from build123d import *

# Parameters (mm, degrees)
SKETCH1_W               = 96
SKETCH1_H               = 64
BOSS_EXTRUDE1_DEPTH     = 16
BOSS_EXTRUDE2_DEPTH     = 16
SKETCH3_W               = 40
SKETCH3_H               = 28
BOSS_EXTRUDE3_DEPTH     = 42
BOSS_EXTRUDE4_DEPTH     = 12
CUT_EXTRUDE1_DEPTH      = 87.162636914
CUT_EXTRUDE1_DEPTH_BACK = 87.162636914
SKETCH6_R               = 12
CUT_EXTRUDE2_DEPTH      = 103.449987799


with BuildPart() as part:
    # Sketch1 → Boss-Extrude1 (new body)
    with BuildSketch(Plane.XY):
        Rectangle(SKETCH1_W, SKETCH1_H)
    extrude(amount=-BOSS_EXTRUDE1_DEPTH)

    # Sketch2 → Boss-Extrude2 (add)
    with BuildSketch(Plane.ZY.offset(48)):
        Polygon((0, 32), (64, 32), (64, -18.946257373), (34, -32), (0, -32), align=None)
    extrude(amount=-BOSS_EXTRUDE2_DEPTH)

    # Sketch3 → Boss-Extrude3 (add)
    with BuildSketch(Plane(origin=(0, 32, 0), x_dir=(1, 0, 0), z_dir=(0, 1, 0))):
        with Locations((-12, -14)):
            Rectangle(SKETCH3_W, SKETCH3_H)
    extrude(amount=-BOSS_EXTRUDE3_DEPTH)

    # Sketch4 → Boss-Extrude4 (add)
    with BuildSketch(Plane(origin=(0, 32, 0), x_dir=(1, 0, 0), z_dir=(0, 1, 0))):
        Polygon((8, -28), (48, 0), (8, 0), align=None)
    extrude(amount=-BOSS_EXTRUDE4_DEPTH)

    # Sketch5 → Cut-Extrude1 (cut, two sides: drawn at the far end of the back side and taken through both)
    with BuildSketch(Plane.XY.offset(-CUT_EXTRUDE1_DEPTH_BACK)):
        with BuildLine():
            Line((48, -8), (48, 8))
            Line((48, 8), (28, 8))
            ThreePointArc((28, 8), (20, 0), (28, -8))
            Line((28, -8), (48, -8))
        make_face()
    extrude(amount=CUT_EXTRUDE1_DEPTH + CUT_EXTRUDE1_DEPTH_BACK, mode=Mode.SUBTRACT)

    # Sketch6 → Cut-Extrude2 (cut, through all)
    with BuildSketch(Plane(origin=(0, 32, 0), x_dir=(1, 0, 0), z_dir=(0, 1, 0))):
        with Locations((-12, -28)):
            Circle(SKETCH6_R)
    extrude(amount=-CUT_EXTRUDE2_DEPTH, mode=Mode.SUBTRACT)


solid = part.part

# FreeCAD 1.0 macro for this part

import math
import FreeCAD as App
import Part
import Sketcher

V = App.Vector


def add_polygon(sketch, points):
    """Adds a closed chain of lines whose ends are joined by coincident constraints."""
    first, n = sketch.GeometryCount, len(points)
    for a, b in zip(points, points[1:] + points[:1]):
        sketch.addGeometry(Part.LineSegment(App.Vector(*a, 0), App.Vector(*b, 0)), False)
    for i in range(n):
        sketch.addConstraint(Sketcher.Constraint("Coincident", first + i, 2, first + (i + 1) % n, 1))

doc = App.newDocument("Part")
params = doc.addObject("Spreadsheet::Sheet", "Params")
for row, (alias, value) in enumerate([
    ("sketch1_width", "96 mm"),
    ("sketch1_height", "64 mm"),
    ("pad1_length", "16 mm"),
    ("sketch2_width", "64 mm"),
    ("sketch2_height", "34 mm"),
    ("pad2_length", "16 mm"),
    ("sketch3_width", "40 mm"),
    ("sketch3_height", "28 mm"),
    ("pad3_length", "42 mm"),
    ("sketch4_width", "40 mm"),
    ("sketch4_height", "28 mm"),
    ("pad4_length", "12 mm"),
    ("sketch5_radius", "8 mm"),
    ("sketch5_width", "20 mm"),
    ("sketch6_diameter", "24 mm"),
], start=1):
    params.set(f"A{row}", alias)
    params.set(f"B{row}", "=" + value)
    params.setAlias(f"B{row}", alias)

body = doc.addObject("PartDesign::Body", "Body")

sketch1 = body.newObject("Sketcher::SketchObject", "Sketch")
sketch1.AttachmentSupport = (doc.getObject("XY_Plane"), [""])
sketch1.MapMode = "FlatFace"
add_polygon(sketch1, [(-48, 32), (-48, -32), (48, -32), (48, 32)])
sketch1.addConstraint(Sketcher.Constraint("Vertical", 0))
sketch1.addConstraint(Sketcher.Constraint("Horizontal", 1))
sketch1.addConstraint(Sketcher.Constraint("Vertical", 2))
sketch1.addConstraint(Sketcher.Constraint("Horizontal", 3))
sketch1.addConstraint(Sketcher.Constraint("Symmetric", 0, 2, 2, 2, -1, 1))
sketch1.addConstraint(Sketcher.Constraint("DistanceX", 1, 1, 1, 2, 96.0))
sketch1.addConstraint(Sketcher.Constraint("DistanceY", 0, 2, 0, 1, 64.0))
sketch1.setExpression("Constraints[9]", "Params.sketch1_width")
sketch1.setExpression("Constraints[10]", "Params.sketch1_height")
pad1 = body.newObject("PartDesign::Pad", "Pad")
pad1.Profile = sketch1
pad1.setExpression("Length", "Params.pad1_length")
pad1.Reversed = True

sketch2 = body.newObject("Sketcher::SketchObject", "Sketch001")
sketch2.AttachmentSupport = (doc.getObject("YZ_Plane"), [""])
sketch2.MapMode = "FlatFace"
sketch2.AttachmentOffset = App.Placement(V(0, 0, -48), App.Rotation())
add_polygon(sketch2, [(32, 64), (32, 0), (-32, 0), (-32, 34), (-18.946257, 64)])
sketch2.addConstraint(Sketcher.Constraint("Vertical", 0))
sketch2.addConstraint(Sketcher.Constraint("Horizontal", 1))
sketch2.addConstraint(Sketcher.Constraint("Vertical", 2))
sketch2.addConstraint(Sketcher.Constraint("Horizontal", 4))
sketch2.addConstraint(Sketcher.Constraint("Symmetric", 0, 2, 1, 2, -1, 1))
sketch2.addConstraint(Sketcher.Constraint("Equal", 1, 0))
sketch2.addConstraint(Sketcher.Constraint("DistanceX", 1, 2, 1, 1, 64.0))
sketch2.addConstraint(Sketcher.Constraint("DistanceY", 2, 1, 2, 2, 34.0))
sketch2.addConstraint(Sketcher.Constraint("Distance", 3, 32.716971))
sketch2.setExpression("Constraints[11]", "Params.sketch2_width")
sketch2.setExpression("Constraints[12]", "Params.sketch2_height")
pad2 = body.newObject("PartDesign::Pad", "Pad001")
pad2.Profile = sketch2
pad2.setExpression("Length", "Params.pad2_length")

sketch3 = body.newObject("Sketcher::SketchObject", "Sketch002")
sketch3.AttachmentSupport = (doc.getObject("XZ_Plane"), [""])
sketch3.MapMode = "FlatFace"
sketch3.AttachmentOffset = App.Placement(V(0, 0, -32), App.Rotation())
add_polygon(sketch3, [(-32, 0), (-32, 28), (8, 28), (8, 0)])
sketch3.addConstraint(Sketcher.Constraint("Vertical", 0))
sketch3.addConstraint(Sketcher.Constraint("Horizontal", 1))
sketch3.addConstraint(Sketcher.Constraint("Vertical", 2))
sketch3.addConstraint(Sketcher.Constraint("Horizontal", 3))
sketch3.addConstraint(Sketcher.Constraint("PointOnObject", 2, 2, -1))
sketch3.addConstraint(Sketcher.Constraint("DistanceX", 1, 1, 1, 2, 40.0))
sketch3.addConstraint(Sketcher.Constraint("DistanceY", 0, 1, 0, 2, 28.0))
sketch3.addConstraint(Sketcher.Constraint("DistanceX", 0, 2, -1, 1, 32.0))
sketch3.setExpression("Constraints[9]", "Params.sketch3_width")
sketch3.setExpression("Constraints[10]", "Params.sketch3_height")
pad3 = body.newObject("PartDesign::Pad", "Pad002")
pad3.Profile = sketch3
pad3.setExpression("Length", "Params.pad3_length")

sketch4 = body.newObject("Sketcher::SketchObject", "Sketch003")
sketch4.AttachmentSupport = (doc.getObject("XZ_Plane"), [""])
sketch4.MapMode = "FlatFace"
sketch4.AttachmentOffset = App.Placement(V(0, 0, -32), App.Rotation())
add_polygon(sketch4, [(8, 28), (48, 0), (8, 0)])
sketch4.addConstraint(Sketcher.Constraint("Horizontal", 1))
sketch4.addConstraint(Sketcher.Constraint("Vertical", 2))
sketch4.addConstraint(Sketcher.Constraint("PointOnObject", 0, 2, -1))
sketch4.addConstraint(Sketcher.Constraint("DistanceX", 1, 2, 1, 1, 40.0))
sketch4.addConstraint(Sketcher.Constraint("DistanceY", 2, 1, 2, 2, 28.0))
sketch4.addConstraint(Sketcher.Constraint("DistanceX", -1, 1, 0, 2, 48.0))
sketch4.setExpression("Constraints[6]", "Params.sketch4_width")
sketch4.setExpression("Constraints[7]", "Params.sketch4_height")
pad4 = body.newObject("PartDesign::Pad", "Pad003")
pad4.Profile = sketch4
pad4.setExpression("Length", "Params.pad4_length")

sketch5 = body.newObject("Sketcher::SketchObject", "Sketch004")
sketch5.AttachmentSupport = (doc.getObject("XY_Plane"), [""])
sketch5.MapMode = "FlatFace"
sketch5.addGeometry(Part.LineSegment(V(48, -8, 0), V(48, 8, 0)), False)
sketch5.addGeometry(Part.LineSegment(V(48, 8, 0), V(28, 8, 0)), False)
sketch5.addGeometry(Part.ArcOfCircle(Part.Circle(V(28, 0, 0), V(0, 0, 1), 8), math.radians(90), math.radians(270)), False)
sketch5.addGeometry(Part.LineSegment(V(28, -8, 0), V(48, -8, 0)), False)
sketch5.addConstraint(Sketcher.Constraint("Coincident", 0, 2, 1, 1))
sketch5.addConstraint(Sketcher.Constraint("Tangent", 1, 2, 2, 1))
sketch5.addConstraint(Sketcher.Constraint("Tangent", 2, 2, 3, 1))
sketch5.addConstraint(Sketcher.Constraint("Coincident", 3, 2, 0, 1))
sketch5.addConstraint(Sketcher.Constraint("Vertical", 0))
sketch5.addConstraint(Sketcher.Constraint("Horizontal", 1))
sketch5.addConstraint(Sketcher.Constraint("Horizontal", 3))
sketch5.addConstraint(Sketcher.Constraint("PointOnObject", 2, 3, -1))
sketch5.addConstraint(Sketcher.Constraint("Radius", 2, 8.0))
sketch5.addConstraint(Sketcher.Constraint("DistanceX", 1, 2, 1, 1, 20.0))
sketch5.addConstraint(Sketcher.Constraint("DistanceX", -1, 1, 2, 3, 28.0))
sketch5.setExpression("Constraints[8]", "Params.sketch5_radius")
sketch5.setExpression("Constraints[9]", "Params.sketch5_width")
pocket1 = body.newObject("PartDesign::Pocket", "Pocket")
pocket1.Profile = sketch5
pocket1.Type = "ThroughAll"
pocket1.Midplane = True

sketch6 = body.newObject("Sketcher::SketchObject", "Sketch005")
sketch6.AttachmentSupport = (doc.getObject("XZ_Plane"), [""])
sketch6.MapMode = "FlatFace"
sketch6.AttachmentOffset = App.Placement(V(0, 0, -32), App.Rotation())
sketch6.addGeometry(Part.Circle(V(-12, 28, 0), V(0, 0, 1), 12), False)
sketch6.addConstraint(Sketcher.Constraint("Diameter", 0, 24.0))
sketch6.addConstraint(Sketcher.Constraint("DistanceX", 0, 3, -1, 1, 12.0))
sketch6.addConstraint(Sketcher.Constraint("DistanceY", -1, 1, 0, 3, 28.0))
sketch6.setExpression("Constraints[0]", "Params.sketch6_diameter")
pocket2 = body.newObject("PartDesign::Pocket", "Pocket001")
pocket2.Profile = sketch6
pocket2.Type = "ThroughAll"
pocket2.Reversed = True

doc.recompute()
